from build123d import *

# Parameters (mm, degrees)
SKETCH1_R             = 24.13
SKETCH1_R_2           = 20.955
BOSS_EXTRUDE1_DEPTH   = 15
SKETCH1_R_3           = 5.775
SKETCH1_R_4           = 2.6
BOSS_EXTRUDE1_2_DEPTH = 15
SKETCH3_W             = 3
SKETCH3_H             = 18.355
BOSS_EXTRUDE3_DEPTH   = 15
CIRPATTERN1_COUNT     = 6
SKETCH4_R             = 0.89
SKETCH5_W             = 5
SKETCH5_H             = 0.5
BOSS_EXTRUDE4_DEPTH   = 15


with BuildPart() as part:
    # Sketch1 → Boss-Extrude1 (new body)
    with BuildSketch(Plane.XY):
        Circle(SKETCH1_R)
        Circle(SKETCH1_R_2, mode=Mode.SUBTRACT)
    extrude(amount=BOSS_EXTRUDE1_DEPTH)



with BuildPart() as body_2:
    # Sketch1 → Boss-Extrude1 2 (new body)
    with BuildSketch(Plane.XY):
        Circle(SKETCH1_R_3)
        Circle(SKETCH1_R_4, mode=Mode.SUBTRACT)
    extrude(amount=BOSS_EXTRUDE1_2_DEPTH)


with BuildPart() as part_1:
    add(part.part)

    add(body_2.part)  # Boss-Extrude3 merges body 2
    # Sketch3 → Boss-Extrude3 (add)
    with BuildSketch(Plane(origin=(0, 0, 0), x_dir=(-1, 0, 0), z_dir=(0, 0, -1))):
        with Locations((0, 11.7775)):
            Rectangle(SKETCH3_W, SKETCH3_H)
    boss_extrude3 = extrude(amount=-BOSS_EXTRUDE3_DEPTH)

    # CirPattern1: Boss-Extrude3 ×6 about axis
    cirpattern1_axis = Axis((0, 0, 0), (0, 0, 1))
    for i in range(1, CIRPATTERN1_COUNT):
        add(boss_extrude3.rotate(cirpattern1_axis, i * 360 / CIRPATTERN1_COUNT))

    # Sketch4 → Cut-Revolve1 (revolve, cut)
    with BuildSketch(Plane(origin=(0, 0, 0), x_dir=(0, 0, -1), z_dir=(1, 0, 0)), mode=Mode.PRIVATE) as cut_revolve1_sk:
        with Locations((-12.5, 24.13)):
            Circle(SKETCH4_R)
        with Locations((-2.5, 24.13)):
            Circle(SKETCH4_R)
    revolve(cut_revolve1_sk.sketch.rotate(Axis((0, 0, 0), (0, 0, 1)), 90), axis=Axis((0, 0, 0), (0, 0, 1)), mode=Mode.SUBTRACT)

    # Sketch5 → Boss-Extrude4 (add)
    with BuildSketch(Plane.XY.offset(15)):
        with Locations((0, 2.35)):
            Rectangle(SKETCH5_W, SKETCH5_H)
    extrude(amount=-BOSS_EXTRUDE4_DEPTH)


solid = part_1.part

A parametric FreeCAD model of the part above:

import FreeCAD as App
import Part
import Sketcher
Q = App.Units.Quantity

doc = App.newDocument("Part")
body = doc.addObject("PartDesign::Body", "Body")

sketch1 = doc.addObject("Sketcher::SketchObject", "Sketch")
body.addObject(sketch1)
sketch1.AttachmentSupport = (doc.XY_Plane, [""])
sketch1.MapMode = "FlatFace"
sketch1.addGeometry([
    Part.Circle(App.Vector(0, 0, 0), App.Vector(0, 0, 1), 24),
    Part.Circle(App.Vector(0, 0, 0), App.Vector(0, 0, 1), 21),
], False)
sketch1.addConstraint([
    Sketcher.Constraint("Coincident", 0, 3, -1, 1),
    Sketcher.Constraint("Coincident", 1, 3, -1, 1),
    Sketcher.Constraint("Diameter", 0, Q("48.26 mm")),
    Sketcher.Constraint("Diameter", 1, Q("41.91 mm")),
])
pad1 = doc.addObject("PartDesign::Pad", "Pad")
body.addObject(pad1)
pad1.Profile = sketch1
pad1.Length = 15
body2 = doc.addObject("PartDesign::Body", "Body001")

sketch2 = doc.addObject("Sketcher::SketchObject", "Sketch001")
body2.addObject(sketch2)
sketch2.AttachmentSupport = (doc.getObject("XY_Plane001"), [""])
sketch2.MapMode = "FlatFace"
sketch2.addGeometry([
    Part.Circle(App.Vector(0, 0, 0), App.Vector(0, 0, 1), 5.8),
    Part.Circle(App.Vector(0, 0, 0), App.Vector(0, 0, 1), 2.6),
], False)
sketch2.addConstraint([
    Sketcher.Constraint("Coincident", 0, 3, -1, 1),
    Sketcher.Constraint("Coincident", 1, 3, -1, 1),
    Sketcher.Constraint("Diameter", 1, Q("5.2 mm")),
    Sketcher.Constraint("Diameter", 0, Q("11.55 mm")),
])
pad2 = doc.addObject("PartDesign::Pad", "Pad001")
body2.addObject(pad2)
pad2.Profile = sketch2
pad2.Length = 15
body.AllowCompound = True
doc.recompute()

boolean = doc.addObject("PartDesign::Boolean", "Boolean")
body.addObject(boolean)
boolean.Type = "Fuse"
boolean.addObjects([body2])

sketch3 = doc.addObject("Sketcher::SketchObject", "Sketch002")
body.addObject(sketch3)
sketch3.AttachmentSupport = (doc.XY_Plane, [""])
sketch3.MapMode = "FlatFace"
sketch3.addGeometry([
    Part.LineSegment(App.Vector(1.5, 21, 0), App.Vector(1.5, 2.6, 0)),
    Part.LineSegment(App.Vector(1.5, 2.6, 0), App.Vector(-1.5, 2.6, 0)),
    Part.LineSegment(App.Vector(-1.5, 2.6, 0), App.Vector(-1.5, 21, 0)),
    Part.LineSegment(App.Vector(-1.5, 21, 0), App.Vector(1.5, 21, 0)),
], False)
sketch3.addConstraint([
    Sketcher.Constraint("Coincident", 0, 2, 1, 1),
    Sketcher.Constraint("Coincident", 1, 2, 2, 1),
    Sketcher.Constraint("Coincident", 2, 2, 3, 1),
    Sketcher.Constraint("Coincident", 3, 2, 0, 1),
    Sketcher.Constraint("Vertical", 0),
    Sketcher.Constraint("Horizontal", 1),
    Sketcher.Constraint("Vertical", 2),
    Sketcher.Constraint("Horizontal", 3),
    Sketcher.Constraint("DistanceX", 1, 2, 1, 1, Q("3 mm")),
    Sketcher.Constraint("DistanceX", -1, 1, 0, 2, Q("1.5 mm")),
    Sketcher.Constraint("DistanceY", -1, 1, 0, 2, Q("2.6 mm")),
    Sketcher.Constraint("DistanceY", 0, 2, 0, 1, Q("18.355 mm")),
])
pad3 = doc.addObject("PartDesign::Pad", "Pad002")
body.addObject(pad3)
pad3.Profile = sketch3
pad3.Length = 15
doc.recompute()

polarpattern = doc.addObject("PartDesign::PolarPattern", "PolarPattern")
body.addObject(polarpattern)
polarpattern.Originals = [pad3]
polarpattern.Axis = (doc.Z_Axis, [""])
polarpattern.Angle = 360
polarpattern.Occurrences = 6
body.Tip = polarpattern

sketch4 = doc.addObject("Sketcher::SketchObject", "Sketch003")
body.addObject(sketch4)
sketch4.AttachmentSupport = (doc.YZ_Plane, [""])
sketch4.MapMode = "FlatFace"
sketch4.addGeometry([
    Part.Circle(App.Vector(24.1, 12.5, 0), App.Vector(0, 0, 1), 0.9),
    Part.Circle(App.Vector(24.1, 2.5, 0), App.Vector(0, 0, 1), 0.9),
], False)
sketch4.addConstraint([
    Sketcher.Constraint("Equal", 0, 1),
    Sketcher.Constraint("Vertical", 0, 3, 1, 3),
    Sketcher.Constraint("Diameter", 0, Q("1.78 mm")),
    Sketcher.Constraint("DistanceY", 1, 3, 0, 3, Q("10 mm")),
    Sketcher.Constraint("DistanceY", -1, 1, 0, 3, Q("12.5 mm")),
    Sketcher.Constraint("DistanceX", -1, 1, 0, 3, Q("24.13 mm")),
])
groove = doc.addObject("PartDesign::Groove", "Groove")
body.addObject(groove)
groove.Profile = sketch4
groove.ReferenceAxis = (sketch4, ["V_Axis"])
groove.Angle = 360

sketch5 = doc.addObject("Sketcher::SketchObject", "Sketch004")
body.addObject(sketch5)
sketch5.AttachmentSupport = (doc.XY_Plane, [""])
sketch5.MapMode = "FlatFace"
sketch5.AttachmentOffset = App.Placement(App.Vector(0, 0, 15), App.Rotation())
sketch5.addGeometry([
    Part.LineSegment(App.Vector(-2.5, 2.6, 0), App.Vector(-2.5, 2.1, 0)),
    Part.LineSegment(App.Vector(-2.5, 2.1, 0), App.Vector(2.5, 2.1, 0)),
    Part.LineSegment(App.Vector(2.5, 2.1, 0), App.Vector(2.5, 2.6, 0)),
    Part.LineSegment(App.Vector(2.5, 2.6, 0), App.Vector(-2.5, 2.6, 0)),
], False)
sketch5.addConstraint([
    Sketcher.Constraint("Coincident", 0, 2, 1, 1),
    Sketcher.Constraint("Coincident", 1, 2, 2, 1),
    Sketcher.Constraint("Coincident", 2, 2, 3, 1),
    Sketcher.Constraint("Coincident", 3, 2, 0, 1),
    Sketcher.Constraint("Vertical", 0),
    Sketcher.Constraint("Horizontal", 1),
    Sketcher.Constraint("Vertical", 2),
    Sketcher.Constraint("Horizontal", 3),
    Sketcher.Constraint("DistanceX", 1, 1, 1, 2, Q("5 mm")),
    Sketcher.Constraint("DistanceY", 0, 2, 0, 1, Q("0.5 mm")),
    Sketcher.Constraint("DistanceX", 0, 2, -1, 1, Q("2.5 mm")),
    Sketcher.Constraint("DistanceY", -1, 1, 0, 2, Q("2.1 mm")),
])
pad4 = doc.addObject("PartDesign::Pad", "Pad003")
body.addObject(pad4)
pad4.Profile = sketch5
pad4.Length = 15
pad4.Reversed = True

doc.recompute()
